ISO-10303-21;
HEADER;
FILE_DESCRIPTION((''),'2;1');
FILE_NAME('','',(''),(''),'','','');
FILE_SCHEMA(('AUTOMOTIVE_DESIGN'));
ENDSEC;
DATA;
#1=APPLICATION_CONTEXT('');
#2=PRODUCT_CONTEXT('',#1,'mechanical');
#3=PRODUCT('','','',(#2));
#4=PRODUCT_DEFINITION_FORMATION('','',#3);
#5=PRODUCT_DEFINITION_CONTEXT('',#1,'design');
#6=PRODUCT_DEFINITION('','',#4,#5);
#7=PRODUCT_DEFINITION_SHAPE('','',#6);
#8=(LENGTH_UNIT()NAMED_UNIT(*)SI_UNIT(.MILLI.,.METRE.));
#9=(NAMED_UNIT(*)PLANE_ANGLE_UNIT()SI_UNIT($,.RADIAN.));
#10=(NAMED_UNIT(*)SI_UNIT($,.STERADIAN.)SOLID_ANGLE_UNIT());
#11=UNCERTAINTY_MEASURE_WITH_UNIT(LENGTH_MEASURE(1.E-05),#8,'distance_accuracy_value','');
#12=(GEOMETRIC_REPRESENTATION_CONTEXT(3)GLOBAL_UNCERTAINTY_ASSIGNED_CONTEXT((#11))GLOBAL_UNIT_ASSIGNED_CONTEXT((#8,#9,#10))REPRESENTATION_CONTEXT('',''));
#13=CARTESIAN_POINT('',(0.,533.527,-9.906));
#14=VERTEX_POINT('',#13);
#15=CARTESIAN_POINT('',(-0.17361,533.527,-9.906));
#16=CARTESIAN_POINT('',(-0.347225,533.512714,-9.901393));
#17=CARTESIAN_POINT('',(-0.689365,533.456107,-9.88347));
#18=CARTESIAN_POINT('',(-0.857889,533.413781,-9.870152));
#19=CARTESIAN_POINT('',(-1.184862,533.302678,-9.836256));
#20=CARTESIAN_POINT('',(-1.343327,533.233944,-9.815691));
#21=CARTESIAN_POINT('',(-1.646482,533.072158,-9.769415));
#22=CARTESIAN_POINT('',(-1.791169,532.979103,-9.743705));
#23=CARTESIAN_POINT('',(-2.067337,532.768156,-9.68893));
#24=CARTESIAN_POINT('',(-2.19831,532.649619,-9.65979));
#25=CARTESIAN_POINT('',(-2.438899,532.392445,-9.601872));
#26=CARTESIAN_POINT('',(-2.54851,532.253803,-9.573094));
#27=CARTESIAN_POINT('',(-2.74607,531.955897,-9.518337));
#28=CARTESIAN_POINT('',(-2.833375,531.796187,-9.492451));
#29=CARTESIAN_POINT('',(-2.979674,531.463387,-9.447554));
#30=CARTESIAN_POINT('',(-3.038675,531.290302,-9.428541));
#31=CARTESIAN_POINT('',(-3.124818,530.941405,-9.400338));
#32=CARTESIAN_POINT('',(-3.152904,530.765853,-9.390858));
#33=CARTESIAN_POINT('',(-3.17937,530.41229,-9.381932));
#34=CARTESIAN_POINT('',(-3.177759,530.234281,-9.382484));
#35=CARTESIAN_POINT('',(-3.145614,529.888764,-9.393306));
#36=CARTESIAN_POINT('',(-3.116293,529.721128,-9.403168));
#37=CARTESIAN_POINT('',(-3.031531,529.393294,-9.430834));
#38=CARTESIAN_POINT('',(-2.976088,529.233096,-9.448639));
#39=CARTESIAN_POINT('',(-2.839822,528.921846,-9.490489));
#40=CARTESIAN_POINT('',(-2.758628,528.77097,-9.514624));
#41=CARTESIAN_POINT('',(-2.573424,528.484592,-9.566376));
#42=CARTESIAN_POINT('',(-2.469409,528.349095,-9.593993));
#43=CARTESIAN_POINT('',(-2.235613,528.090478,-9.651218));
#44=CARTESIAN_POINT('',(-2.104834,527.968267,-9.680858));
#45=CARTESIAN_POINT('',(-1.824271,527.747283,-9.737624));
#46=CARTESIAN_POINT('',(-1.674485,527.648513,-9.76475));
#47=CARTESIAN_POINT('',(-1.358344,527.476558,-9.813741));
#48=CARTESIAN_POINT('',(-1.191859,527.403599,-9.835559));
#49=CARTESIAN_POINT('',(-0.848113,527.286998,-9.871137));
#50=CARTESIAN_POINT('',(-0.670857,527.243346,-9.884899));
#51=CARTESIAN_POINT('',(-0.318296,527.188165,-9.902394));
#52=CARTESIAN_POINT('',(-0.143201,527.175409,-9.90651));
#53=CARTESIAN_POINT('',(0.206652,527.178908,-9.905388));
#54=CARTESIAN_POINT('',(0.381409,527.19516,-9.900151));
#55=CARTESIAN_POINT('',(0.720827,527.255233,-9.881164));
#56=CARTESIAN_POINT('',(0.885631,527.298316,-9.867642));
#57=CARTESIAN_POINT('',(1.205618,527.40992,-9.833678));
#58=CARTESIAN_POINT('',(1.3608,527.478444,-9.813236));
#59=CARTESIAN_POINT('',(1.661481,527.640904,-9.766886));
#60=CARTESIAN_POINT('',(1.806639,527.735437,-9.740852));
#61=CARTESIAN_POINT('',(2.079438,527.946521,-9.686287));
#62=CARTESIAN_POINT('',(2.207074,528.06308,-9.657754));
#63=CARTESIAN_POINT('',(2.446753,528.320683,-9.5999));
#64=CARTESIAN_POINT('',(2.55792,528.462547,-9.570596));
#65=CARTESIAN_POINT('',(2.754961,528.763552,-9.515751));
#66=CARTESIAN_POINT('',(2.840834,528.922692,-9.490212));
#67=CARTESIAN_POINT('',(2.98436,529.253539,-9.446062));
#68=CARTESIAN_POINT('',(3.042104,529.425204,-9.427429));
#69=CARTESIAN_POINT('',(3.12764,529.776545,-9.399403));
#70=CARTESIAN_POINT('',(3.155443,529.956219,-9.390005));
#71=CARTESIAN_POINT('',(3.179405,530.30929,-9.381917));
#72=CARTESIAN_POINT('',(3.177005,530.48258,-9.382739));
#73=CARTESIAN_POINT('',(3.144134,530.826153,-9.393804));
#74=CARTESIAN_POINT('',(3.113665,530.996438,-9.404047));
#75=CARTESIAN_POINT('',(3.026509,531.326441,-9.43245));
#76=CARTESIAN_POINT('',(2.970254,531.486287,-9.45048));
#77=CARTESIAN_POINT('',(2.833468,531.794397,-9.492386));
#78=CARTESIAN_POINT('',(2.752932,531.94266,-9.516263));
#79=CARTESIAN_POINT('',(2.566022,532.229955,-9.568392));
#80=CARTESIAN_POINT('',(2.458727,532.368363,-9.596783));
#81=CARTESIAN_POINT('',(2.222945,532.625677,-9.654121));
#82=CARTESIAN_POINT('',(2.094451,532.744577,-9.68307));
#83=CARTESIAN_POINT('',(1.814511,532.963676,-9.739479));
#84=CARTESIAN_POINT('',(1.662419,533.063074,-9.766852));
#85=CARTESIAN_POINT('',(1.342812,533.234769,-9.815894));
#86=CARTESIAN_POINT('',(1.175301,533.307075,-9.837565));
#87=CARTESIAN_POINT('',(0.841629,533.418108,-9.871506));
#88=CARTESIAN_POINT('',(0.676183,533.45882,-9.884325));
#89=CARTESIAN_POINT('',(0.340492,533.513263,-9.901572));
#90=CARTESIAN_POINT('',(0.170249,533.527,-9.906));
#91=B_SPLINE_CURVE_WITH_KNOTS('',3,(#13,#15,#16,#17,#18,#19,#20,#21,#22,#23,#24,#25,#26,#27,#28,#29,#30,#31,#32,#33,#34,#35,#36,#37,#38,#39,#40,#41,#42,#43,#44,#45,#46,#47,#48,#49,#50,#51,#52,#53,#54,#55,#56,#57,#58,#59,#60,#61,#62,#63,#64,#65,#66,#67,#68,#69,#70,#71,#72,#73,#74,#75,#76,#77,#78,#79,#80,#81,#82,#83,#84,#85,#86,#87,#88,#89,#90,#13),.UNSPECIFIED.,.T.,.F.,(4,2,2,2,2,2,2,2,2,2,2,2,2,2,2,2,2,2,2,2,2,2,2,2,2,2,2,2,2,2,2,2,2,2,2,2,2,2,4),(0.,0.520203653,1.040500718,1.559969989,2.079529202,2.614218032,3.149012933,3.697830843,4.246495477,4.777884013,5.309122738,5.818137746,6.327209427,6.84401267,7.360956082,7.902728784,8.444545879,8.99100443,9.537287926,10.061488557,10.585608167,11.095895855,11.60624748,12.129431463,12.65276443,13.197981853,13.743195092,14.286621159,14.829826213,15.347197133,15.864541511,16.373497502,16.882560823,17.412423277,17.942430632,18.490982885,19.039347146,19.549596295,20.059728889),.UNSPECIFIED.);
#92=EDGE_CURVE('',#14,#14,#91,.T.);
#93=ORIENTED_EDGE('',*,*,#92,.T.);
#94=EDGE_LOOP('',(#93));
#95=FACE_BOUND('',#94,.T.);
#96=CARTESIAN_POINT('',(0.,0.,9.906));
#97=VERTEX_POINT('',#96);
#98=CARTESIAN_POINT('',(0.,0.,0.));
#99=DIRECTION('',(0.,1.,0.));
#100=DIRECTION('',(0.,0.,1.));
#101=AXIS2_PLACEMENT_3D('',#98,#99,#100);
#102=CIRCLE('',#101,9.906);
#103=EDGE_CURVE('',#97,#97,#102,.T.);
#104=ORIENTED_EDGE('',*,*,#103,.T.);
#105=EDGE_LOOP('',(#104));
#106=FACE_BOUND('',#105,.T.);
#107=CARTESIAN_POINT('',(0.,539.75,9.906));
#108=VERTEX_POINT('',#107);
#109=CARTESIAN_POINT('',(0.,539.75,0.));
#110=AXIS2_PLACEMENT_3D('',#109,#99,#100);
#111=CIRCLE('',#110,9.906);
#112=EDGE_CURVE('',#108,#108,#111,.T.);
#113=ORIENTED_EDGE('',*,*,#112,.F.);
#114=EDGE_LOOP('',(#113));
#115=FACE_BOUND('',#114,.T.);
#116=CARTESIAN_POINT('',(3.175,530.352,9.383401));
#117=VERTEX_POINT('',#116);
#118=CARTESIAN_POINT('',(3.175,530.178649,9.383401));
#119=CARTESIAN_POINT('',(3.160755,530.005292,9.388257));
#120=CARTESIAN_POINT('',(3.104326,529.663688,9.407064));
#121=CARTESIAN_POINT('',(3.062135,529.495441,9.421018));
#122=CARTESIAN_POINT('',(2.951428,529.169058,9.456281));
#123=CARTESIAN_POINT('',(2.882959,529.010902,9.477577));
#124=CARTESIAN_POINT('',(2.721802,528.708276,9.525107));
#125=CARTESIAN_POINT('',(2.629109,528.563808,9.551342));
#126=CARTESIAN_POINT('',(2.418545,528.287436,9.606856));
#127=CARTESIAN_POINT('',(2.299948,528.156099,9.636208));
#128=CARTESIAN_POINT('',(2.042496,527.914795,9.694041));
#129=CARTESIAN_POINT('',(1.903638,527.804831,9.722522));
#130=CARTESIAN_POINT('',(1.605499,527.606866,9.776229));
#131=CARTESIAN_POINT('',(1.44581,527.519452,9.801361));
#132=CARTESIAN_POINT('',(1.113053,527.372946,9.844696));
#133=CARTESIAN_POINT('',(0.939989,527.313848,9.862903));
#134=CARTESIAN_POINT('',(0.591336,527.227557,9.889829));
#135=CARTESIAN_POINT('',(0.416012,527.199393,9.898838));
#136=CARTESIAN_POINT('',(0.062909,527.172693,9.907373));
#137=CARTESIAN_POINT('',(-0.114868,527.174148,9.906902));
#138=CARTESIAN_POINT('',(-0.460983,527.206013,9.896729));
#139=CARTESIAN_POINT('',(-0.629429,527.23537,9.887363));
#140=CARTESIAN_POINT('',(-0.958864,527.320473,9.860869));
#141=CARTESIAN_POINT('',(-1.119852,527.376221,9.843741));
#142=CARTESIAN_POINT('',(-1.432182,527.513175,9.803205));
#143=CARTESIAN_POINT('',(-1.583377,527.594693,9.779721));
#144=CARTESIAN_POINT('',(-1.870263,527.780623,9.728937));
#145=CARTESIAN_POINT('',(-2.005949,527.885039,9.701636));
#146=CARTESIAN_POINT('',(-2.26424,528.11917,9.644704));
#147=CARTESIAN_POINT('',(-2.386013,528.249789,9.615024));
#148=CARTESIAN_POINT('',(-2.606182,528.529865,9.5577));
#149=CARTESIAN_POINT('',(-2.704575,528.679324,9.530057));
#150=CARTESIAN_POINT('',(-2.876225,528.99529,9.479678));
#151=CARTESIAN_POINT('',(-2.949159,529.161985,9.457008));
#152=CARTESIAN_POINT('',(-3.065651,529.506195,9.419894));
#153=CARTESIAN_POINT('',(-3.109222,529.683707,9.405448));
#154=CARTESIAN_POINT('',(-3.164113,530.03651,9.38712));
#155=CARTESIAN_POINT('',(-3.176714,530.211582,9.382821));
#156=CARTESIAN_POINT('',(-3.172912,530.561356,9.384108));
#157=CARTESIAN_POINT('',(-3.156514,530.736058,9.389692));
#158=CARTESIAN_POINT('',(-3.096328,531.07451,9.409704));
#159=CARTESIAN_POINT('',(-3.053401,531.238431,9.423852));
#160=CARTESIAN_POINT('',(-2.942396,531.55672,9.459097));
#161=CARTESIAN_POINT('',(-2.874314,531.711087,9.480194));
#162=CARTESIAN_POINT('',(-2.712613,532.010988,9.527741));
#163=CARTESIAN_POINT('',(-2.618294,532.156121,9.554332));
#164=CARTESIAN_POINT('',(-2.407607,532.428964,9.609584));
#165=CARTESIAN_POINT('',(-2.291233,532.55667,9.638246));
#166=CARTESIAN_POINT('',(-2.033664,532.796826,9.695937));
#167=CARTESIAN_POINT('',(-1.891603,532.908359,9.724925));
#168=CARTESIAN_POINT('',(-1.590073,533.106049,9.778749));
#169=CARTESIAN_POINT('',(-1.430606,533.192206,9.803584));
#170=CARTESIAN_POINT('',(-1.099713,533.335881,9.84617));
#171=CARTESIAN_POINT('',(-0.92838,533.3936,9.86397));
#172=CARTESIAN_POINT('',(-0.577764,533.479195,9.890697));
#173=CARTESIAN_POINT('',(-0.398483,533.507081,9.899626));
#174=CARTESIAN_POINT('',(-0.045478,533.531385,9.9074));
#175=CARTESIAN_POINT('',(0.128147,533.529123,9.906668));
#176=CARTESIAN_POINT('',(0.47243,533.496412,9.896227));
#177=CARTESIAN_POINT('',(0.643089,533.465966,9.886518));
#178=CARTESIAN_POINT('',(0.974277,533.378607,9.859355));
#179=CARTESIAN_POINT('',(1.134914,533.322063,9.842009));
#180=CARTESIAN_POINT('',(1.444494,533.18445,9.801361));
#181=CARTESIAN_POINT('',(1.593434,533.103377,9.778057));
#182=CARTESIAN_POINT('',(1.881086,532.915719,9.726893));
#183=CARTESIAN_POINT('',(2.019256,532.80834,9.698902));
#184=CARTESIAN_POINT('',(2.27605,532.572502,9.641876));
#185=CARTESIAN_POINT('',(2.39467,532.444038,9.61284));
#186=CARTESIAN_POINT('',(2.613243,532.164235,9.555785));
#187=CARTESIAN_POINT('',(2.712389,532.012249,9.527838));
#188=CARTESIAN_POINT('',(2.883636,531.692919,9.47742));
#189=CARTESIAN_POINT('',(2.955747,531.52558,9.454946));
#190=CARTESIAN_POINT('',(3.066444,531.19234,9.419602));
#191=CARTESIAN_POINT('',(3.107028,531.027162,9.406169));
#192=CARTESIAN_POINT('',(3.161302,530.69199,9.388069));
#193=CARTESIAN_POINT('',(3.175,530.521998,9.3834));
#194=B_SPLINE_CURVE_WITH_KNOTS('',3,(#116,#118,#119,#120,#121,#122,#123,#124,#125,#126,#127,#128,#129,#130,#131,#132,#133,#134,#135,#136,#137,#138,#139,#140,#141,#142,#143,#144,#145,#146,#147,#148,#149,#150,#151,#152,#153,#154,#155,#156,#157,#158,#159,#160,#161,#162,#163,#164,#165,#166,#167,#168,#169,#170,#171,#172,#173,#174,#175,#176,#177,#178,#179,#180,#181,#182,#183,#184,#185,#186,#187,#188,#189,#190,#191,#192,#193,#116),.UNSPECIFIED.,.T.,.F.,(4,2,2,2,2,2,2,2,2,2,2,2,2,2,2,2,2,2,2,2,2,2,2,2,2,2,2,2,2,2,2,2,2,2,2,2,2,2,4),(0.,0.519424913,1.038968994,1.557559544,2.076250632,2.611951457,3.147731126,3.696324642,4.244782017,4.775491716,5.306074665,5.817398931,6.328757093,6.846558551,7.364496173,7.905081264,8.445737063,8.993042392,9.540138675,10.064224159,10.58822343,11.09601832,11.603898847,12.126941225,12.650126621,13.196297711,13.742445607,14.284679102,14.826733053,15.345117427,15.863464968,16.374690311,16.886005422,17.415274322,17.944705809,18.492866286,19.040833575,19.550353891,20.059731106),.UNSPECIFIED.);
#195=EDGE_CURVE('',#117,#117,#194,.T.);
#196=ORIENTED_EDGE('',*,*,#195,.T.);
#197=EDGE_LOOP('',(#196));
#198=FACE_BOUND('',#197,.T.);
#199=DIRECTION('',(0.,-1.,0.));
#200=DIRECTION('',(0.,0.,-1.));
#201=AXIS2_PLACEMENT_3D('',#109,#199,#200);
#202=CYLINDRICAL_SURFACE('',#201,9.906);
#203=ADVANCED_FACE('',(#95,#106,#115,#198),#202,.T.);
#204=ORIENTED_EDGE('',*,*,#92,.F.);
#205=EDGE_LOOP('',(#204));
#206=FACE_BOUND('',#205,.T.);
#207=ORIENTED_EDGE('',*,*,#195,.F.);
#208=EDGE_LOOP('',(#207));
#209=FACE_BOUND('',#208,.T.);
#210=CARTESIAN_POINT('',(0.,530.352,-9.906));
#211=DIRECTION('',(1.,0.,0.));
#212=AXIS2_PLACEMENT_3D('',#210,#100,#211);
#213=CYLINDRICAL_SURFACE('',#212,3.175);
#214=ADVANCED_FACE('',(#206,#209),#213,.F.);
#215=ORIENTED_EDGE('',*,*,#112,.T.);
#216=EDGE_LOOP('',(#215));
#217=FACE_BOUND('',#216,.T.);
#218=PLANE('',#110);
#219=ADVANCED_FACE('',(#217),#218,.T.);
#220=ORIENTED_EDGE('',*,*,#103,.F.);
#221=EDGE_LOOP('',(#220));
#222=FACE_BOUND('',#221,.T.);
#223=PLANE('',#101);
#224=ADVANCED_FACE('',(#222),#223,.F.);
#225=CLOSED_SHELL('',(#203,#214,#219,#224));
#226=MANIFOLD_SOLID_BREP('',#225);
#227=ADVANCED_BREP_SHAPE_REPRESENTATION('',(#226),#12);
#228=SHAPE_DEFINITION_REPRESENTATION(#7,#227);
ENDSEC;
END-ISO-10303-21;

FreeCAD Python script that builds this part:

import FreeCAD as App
import Part
import Sketcher
from FreeCAD import Vector
Q = App.Units.Quantity

doc = App.newDocument("Part")
body = doc.addObject("PartDesign::Body", "Body")

# Sketch on XZ plane
sketch1 = body.newObject("Sketcher::SketchObject", "Sketch")
sketch1.AttachmentSupport = (doc.getObject("XZ_Plane"), [""])
sketch1.MapMode = "FlatFace"
sketch1.addGeometry(Part.Circle(Vector(0, 0, 0), Vector(0, 0, 1), 10), False)
sketch1.addConstraint(Sketcher.Constraint("Coincident", 0, 3, -1, 1))
sketch1.addConstraint(Sketcher.Constraint("Diameter", 0, Q("0.78 in")))
pad1 = body.newObject("PartDesign::Pad", "Pad")
pad1.Profile = sketch1
pad1.Length = Q("21.25 in")
pad1.Reversed = True

# Sketch on XY plane
sketch2 = body.newObject("Sketcher::SketchObject", "Sketch001")
sketch2.AttachmentSupport = (doc.getObject("XY_Plane"), [""])
sketch2.MapMode = "FlatFace"
sketch2.addGeometry(Part.Circle(Vector(0, 530.4, 0), Vector(0, 0, 1), 3.2), False)
sketch2.addConstraint(Sketcher.Constraint("PointOnObject", 0, 3, -2))
sketch2.addConstraint(Sketcher.Constraint("Diameter", 0, Q("0.25 in")))
sketch2.addConstraint(Sketcher.Constraint("DistanceY", -1, 1, 0, 3, Q("20.88 in")))
pocket1 = body.newObject("PartDesign::Pocket", "Pocket")
pocket1.Profile = sketch2
pocket1.Type = "ThroughAll"
pocket1.Midplane = True

doc.recompute()
